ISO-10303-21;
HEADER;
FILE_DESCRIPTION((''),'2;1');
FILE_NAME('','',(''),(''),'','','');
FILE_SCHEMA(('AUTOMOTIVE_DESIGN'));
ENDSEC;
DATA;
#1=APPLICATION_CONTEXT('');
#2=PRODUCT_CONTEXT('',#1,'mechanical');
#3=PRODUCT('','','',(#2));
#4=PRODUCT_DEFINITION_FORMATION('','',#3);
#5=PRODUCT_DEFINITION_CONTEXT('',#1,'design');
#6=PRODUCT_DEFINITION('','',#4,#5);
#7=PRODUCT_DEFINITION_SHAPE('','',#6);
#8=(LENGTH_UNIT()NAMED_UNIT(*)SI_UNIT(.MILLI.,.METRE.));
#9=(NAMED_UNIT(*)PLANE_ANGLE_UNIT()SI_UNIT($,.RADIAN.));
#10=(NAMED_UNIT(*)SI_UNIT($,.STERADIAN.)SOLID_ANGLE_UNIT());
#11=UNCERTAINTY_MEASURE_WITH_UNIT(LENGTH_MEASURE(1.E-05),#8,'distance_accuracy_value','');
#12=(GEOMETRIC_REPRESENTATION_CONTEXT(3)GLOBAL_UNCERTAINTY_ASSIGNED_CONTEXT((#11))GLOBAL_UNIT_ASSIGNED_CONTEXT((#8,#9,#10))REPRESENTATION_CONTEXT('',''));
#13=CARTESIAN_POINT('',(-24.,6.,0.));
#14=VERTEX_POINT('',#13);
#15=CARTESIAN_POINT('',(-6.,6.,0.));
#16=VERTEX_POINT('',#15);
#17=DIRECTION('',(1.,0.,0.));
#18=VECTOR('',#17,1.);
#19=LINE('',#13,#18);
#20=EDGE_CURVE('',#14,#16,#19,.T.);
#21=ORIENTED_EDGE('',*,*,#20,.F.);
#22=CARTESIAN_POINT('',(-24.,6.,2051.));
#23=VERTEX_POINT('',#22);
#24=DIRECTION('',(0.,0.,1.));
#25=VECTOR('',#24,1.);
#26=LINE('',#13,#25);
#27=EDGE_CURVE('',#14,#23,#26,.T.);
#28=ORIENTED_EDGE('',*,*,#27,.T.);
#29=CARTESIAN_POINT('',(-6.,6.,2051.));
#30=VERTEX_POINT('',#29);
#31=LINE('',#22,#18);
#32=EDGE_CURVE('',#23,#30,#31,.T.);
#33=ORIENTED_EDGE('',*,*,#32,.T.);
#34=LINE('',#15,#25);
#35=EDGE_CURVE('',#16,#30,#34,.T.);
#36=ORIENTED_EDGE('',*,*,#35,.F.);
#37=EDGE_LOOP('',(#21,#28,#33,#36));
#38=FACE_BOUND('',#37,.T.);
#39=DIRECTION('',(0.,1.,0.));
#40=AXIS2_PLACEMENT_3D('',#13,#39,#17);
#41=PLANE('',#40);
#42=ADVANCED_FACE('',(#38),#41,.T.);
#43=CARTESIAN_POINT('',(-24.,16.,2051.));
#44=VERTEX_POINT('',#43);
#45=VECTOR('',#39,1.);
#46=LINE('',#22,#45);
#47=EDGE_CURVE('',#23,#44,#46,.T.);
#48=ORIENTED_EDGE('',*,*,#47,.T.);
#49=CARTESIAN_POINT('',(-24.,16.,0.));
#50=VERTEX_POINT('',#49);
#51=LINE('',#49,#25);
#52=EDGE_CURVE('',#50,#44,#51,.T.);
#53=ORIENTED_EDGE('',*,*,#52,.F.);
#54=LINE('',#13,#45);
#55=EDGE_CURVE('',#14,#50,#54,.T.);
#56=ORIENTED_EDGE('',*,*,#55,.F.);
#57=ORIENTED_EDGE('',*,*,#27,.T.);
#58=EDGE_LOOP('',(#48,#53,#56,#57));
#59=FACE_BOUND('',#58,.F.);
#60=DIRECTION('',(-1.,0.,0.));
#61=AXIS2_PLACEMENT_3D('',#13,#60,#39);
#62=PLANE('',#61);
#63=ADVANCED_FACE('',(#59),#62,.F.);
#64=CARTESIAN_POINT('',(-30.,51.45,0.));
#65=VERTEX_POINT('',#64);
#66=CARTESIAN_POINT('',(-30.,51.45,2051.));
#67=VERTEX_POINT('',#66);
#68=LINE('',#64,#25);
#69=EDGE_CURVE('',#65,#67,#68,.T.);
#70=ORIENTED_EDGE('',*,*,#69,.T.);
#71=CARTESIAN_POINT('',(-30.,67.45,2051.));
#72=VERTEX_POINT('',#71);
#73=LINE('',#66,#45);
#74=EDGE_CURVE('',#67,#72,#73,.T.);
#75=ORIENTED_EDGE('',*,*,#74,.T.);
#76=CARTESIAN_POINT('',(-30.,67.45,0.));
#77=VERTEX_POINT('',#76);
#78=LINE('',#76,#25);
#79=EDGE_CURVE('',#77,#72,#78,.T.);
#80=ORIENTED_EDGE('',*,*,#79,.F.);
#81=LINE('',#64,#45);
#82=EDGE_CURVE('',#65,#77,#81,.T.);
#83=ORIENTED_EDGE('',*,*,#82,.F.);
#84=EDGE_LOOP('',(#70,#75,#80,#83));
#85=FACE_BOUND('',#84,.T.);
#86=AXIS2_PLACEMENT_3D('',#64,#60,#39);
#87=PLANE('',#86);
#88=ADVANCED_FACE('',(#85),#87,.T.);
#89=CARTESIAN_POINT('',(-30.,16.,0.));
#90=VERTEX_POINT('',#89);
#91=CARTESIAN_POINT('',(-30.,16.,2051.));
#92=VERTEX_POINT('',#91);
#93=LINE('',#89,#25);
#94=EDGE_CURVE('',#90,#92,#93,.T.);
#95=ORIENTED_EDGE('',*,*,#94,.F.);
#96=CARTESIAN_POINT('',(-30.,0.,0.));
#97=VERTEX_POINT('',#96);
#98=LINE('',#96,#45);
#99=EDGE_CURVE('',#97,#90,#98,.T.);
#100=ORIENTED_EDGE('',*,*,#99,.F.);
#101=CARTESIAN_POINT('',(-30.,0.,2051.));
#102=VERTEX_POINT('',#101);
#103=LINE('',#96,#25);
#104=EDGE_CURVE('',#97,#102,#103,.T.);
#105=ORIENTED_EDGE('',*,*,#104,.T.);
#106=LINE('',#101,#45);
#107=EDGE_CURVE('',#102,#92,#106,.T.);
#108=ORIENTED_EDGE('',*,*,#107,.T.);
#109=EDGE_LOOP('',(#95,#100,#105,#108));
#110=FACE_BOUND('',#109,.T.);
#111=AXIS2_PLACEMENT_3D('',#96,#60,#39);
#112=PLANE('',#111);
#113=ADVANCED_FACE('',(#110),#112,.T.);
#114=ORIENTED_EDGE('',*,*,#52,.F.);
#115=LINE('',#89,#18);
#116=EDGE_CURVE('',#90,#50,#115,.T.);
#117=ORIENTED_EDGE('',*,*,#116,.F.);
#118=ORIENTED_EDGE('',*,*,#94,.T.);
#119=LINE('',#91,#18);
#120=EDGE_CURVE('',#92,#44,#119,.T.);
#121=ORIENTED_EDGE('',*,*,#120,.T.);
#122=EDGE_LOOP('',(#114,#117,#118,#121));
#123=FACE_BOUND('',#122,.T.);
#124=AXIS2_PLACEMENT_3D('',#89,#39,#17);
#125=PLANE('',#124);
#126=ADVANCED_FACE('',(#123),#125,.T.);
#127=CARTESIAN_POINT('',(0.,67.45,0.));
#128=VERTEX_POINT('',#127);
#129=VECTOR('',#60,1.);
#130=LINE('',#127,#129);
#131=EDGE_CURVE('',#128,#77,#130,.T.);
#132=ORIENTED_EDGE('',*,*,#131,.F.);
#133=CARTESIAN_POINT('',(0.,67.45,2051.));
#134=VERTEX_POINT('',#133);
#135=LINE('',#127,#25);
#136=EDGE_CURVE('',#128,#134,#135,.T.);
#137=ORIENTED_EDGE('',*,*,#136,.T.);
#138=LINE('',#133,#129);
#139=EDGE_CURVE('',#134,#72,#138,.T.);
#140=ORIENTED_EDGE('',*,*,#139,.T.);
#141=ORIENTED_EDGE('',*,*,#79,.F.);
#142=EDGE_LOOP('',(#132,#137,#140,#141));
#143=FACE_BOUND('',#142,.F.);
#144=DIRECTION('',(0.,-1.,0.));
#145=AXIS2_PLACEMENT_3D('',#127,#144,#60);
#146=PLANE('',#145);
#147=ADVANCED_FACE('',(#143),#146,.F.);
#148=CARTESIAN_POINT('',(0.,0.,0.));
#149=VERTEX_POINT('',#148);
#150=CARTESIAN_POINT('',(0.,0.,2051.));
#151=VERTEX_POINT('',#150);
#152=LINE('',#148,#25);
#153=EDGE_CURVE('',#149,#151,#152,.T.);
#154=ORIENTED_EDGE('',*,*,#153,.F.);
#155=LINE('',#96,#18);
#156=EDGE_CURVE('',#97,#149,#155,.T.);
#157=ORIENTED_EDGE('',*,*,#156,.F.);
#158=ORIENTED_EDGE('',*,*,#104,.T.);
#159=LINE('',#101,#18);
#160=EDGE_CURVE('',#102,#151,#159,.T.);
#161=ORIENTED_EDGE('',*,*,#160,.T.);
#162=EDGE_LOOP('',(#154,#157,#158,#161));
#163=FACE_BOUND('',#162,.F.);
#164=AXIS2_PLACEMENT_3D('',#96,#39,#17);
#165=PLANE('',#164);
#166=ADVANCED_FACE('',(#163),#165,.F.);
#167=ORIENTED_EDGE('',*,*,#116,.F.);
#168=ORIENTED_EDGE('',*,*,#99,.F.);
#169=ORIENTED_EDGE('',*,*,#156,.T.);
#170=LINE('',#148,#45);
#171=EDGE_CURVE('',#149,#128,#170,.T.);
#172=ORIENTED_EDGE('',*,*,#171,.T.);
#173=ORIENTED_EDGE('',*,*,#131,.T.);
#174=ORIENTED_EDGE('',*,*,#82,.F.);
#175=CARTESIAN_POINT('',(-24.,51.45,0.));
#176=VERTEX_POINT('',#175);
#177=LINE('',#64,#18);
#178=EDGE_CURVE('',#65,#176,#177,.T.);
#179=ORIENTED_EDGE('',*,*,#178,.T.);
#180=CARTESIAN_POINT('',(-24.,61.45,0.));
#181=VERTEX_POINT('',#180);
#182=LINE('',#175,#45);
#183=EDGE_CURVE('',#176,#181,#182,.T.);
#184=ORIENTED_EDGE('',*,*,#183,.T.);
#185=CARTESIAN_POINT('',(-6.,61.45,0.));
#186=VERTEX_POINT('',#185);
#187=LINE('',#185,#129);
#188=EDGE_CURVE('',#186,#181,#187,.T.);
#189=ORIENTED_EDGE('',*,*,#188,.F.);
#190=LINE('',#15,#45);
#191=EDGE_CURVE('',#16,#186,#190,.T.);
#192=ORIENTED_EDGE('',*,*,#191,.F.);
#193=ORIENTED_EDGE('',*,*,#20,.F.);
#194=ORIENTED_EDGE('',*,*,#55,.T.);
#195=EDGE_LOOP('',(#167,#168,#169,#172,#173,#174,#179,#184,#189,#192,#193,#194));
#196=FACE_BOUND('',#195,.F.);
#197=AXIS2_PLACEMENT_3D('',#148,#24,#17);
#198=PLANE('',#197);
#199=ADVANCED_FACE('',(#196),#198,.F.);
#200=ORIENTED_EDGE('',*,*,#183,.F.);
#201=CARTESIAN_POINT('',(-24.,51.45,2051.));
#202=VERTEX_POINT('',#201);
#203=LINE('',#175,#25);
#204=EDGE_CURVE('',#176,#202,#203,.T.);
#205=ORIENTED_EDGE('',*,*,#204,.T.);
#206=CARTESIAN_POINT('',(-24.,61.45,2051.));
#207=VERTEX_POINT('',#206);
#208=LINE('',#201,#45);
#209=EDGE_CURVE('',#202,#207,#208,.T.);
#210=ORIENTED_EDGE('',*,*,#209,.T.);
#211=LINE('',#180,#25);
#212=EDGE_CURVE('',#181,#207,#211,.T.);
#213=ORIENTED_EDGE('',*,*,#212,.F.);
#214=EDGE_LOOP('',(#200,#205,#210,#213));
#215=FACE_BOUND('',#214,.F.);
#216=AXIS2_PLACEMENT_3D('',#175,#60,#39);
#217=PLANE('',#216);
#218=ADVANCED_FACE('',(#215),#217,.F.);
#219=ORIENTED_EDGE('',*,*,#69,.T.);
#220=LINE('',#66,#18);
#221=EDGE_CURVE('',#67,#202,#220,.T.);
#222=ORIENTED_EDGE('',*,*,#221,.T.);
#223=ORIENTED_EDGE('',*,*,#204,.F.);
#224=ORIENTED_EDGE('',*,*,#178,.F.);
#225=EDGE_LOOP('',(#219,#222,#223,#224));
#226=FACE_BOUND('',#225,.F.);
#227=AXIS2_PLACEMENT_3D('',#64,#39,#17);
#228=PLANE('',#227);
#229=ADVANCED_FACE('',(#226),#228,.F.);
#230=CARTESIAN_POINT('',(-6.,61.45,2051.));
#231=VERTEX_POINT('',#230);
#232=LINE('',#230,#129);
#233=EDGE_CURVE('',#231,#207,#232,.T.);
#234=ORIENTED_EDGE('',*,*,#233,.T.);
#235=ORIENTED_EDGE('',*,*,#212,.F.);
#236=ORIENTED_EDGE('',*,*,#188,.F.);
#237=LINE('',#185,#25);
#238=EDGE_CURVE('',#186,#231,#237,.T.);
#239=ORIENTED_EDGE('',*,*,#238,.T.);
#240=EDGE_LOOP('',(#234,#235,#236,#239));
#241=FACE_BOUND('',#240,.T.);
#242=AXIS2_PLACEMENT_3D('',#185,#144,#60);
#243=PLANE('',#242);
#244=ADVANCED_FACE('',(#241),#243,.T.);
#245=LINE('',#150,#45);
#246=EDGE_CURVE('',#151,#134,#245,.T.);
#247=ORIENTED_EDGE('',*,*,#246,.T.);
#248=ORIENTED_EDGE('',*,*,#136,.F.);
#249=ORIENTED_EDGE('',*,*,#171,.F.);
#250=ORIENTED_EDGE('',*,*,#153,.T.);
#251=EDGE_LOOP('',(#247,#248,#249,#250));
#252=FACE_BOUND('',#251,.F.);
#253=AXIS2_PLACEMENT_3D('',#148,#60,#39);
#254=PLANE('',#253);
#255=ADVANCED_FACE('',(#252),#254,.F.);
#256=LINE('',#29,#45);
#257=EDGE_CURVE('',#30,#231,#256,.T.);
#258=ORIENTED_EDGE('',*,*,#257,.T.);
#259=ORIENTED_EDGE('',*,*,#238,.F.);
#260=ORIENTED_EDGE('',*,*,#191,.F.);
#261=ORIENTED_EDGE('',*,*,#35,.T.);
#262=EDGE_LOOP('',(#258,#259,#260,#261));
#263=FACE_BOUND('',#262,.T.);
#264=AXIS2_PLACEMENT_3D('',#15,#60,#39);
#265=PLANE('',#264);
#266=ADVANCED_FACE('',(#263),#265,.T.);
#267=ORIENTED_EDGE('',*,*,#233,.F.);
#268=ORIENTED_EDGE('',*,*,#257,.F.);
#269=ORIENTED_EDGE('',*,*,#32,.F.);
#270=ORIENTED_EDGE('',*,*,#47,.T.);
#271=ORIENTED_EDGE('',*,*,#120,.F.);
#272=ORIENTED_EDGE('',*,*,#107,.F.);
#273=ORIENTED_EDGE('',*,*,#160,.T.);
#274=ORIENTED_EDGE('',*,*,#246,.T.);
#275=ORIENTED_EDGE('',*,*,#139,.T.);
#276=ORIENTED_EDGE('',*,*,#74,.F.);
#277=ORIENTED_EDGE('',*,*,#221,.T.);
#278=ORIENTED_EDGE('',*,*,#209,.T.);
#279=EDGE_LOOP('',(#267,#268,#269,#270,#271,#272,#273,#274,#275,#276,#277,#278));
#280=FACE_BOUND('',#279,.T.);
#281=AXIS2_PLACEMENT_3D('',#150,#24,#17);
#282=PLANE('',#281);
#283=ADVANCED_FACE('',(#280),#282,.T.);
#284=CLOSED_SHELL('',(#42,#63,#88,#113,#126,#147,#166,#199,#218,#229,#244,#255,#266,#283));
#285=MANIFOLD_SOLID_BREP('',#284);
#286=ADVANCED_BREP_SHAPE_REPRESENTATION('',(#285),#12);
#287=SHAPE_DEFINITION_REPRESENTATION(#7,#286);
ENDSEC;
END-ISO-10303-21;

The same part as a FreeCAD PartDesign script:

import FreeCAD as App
import Part
import Sketcher

V = App.Vector

doc = App.newDocument("Part")
body = doc.addObject("PartDesign::Body", "Body")

# Sketch on XY plane
sketch1 = body.newObject("Sketcher::SketchObject", "Sketch")
sketch1.AttachmentSupport = (doc.getObject("XY_Plane"), [""])
sketch1.MapMode = "FlatFace"
sketch1.addGeometry([
    Part.LineSegment(V(-30, 16, 0), V(-30, 0, 0)),  # 0
    Part.LineSegment(V(-30, 0, 0), V(0, 0, 0)),  # 1
    Part.LineSegment(V(0, 0, 0), V(0, 67, 0)),  # 2
    Part.LineSegment(V(0, 67, 0), V(-30, 67, 0)),  # 3
    Part.LineSegment(V(-30, 67, 0), V(-30, 51, 0)),  # 4
    Part.LineSegment(V(-30, 51, 0), V(-24, 51, 0)),  # 5
    Part.LineSegment(V(-24, 51, 0), V(-24, 61, 0)),  # 6
    Part.LineSegment(V(-24, 61, 0), V(-6, 61, 0)),  # 7
    Part.LineSegment(V(-6, 61, 0), V(-6, 6, 0)),  # 8
    Part.LineSegment(V(-6, 6, 0), V(-24, 6, 0)),  # 9
    Part.LineSegment(V(-24, 6, 0), V(-24, 16, 0)),  # 10
    Part.LineSegment(V(-24, 16, 0), V(-30, 16, 0)),  # 11
], False)
sketch1.addConstraint([
    Sketcher.Constraint("Coincident", 0, 2, 1, 1),
    Sketcher.Constraint("Coincident", 1, 2, 2, 1),
    Sketcher.Constraint("Coincident", 2, 2, 3, 1),
    Sketcher.Constraint("Coincident", 3, 2, 4, 1),
    Sketcher.Constraint("Coincident", 4, 2, 5, 1),
    Sketcher.Constraint("Coincident", 5, 2, 6, 1),
    Sketcher.Constraint("Coincident", 6, 2, 7, 1),
    Sketcher.Constraint("Coincident", 7, 2, 8, 1),
    Sketcher.Constraint("Coincident", 8, 2, 9, 1),
    Sketcher.Constraint("Coincident", 9, 2, 10, 1),
    Sketcher.Constraint("Coincident", 10, 2, 11, 1),
    Sketcher.Constraint("Coincident", 11, 2, 0, 1),
    Sketcher.Constraint("Vertical", 0),
    Sketcher.Constraint("Horizontal", 1),
    Sketcher.Constraint("Vertical", 2),
    Sketcher.Constraint("Horizontal", 3),
    Sketcher.Constraint("Vertical", 4),
    Sketcher.Constraint("Horizontal", 5),
    Sketcher.Constraint("Vertical", 6),
    Sketcher.Constraint("Horizontal", 7),
    Sketcher.Constraint("Vertical", 8),
    Sketcher.Constraint("Horizontal", 9),
    Sketcher.Constraint("Vertical", 10),
    Sketcher.Constraint("Horizontal", 11),
    Sketcher.Constraint("Coincident", 1, 2, -1, 1),
    Sketcher.Constraint("Vertical", 0, 2, 3, 2),
    Sketcher.Constraint("Vertical", 6, 2, 9, 2),
    Sketcher.Constraint("Equal", 0, 4),
    Sketcher.Constraint("Equal", 6, 10),
    Sketcher.Constraint("DistanceX", 1, 1, 1, 2, 30.0),
    Sketcher.Constraint("DistanceX", 5, 1, 5, 2, 6.0),
    Sketcher.Constraint("DistanceY", 6, 1, 6, 2, 10.0),
    Sketcher.Constraint("DistanceX", 7, 2, -1, 1, 6.0),
    Sketcher.Constraint("DistanceY", -1, 1, 8, 2, 6.0),
    Sketcher.Constraint("DistanceY", 2, 1, 2, 2, 67.45),
])
pad1 = body.newObject("PartDesign::Pad", "Pad")
pad1.Profile = sketch1
pad1.Length = 2051

doc.recompute()
